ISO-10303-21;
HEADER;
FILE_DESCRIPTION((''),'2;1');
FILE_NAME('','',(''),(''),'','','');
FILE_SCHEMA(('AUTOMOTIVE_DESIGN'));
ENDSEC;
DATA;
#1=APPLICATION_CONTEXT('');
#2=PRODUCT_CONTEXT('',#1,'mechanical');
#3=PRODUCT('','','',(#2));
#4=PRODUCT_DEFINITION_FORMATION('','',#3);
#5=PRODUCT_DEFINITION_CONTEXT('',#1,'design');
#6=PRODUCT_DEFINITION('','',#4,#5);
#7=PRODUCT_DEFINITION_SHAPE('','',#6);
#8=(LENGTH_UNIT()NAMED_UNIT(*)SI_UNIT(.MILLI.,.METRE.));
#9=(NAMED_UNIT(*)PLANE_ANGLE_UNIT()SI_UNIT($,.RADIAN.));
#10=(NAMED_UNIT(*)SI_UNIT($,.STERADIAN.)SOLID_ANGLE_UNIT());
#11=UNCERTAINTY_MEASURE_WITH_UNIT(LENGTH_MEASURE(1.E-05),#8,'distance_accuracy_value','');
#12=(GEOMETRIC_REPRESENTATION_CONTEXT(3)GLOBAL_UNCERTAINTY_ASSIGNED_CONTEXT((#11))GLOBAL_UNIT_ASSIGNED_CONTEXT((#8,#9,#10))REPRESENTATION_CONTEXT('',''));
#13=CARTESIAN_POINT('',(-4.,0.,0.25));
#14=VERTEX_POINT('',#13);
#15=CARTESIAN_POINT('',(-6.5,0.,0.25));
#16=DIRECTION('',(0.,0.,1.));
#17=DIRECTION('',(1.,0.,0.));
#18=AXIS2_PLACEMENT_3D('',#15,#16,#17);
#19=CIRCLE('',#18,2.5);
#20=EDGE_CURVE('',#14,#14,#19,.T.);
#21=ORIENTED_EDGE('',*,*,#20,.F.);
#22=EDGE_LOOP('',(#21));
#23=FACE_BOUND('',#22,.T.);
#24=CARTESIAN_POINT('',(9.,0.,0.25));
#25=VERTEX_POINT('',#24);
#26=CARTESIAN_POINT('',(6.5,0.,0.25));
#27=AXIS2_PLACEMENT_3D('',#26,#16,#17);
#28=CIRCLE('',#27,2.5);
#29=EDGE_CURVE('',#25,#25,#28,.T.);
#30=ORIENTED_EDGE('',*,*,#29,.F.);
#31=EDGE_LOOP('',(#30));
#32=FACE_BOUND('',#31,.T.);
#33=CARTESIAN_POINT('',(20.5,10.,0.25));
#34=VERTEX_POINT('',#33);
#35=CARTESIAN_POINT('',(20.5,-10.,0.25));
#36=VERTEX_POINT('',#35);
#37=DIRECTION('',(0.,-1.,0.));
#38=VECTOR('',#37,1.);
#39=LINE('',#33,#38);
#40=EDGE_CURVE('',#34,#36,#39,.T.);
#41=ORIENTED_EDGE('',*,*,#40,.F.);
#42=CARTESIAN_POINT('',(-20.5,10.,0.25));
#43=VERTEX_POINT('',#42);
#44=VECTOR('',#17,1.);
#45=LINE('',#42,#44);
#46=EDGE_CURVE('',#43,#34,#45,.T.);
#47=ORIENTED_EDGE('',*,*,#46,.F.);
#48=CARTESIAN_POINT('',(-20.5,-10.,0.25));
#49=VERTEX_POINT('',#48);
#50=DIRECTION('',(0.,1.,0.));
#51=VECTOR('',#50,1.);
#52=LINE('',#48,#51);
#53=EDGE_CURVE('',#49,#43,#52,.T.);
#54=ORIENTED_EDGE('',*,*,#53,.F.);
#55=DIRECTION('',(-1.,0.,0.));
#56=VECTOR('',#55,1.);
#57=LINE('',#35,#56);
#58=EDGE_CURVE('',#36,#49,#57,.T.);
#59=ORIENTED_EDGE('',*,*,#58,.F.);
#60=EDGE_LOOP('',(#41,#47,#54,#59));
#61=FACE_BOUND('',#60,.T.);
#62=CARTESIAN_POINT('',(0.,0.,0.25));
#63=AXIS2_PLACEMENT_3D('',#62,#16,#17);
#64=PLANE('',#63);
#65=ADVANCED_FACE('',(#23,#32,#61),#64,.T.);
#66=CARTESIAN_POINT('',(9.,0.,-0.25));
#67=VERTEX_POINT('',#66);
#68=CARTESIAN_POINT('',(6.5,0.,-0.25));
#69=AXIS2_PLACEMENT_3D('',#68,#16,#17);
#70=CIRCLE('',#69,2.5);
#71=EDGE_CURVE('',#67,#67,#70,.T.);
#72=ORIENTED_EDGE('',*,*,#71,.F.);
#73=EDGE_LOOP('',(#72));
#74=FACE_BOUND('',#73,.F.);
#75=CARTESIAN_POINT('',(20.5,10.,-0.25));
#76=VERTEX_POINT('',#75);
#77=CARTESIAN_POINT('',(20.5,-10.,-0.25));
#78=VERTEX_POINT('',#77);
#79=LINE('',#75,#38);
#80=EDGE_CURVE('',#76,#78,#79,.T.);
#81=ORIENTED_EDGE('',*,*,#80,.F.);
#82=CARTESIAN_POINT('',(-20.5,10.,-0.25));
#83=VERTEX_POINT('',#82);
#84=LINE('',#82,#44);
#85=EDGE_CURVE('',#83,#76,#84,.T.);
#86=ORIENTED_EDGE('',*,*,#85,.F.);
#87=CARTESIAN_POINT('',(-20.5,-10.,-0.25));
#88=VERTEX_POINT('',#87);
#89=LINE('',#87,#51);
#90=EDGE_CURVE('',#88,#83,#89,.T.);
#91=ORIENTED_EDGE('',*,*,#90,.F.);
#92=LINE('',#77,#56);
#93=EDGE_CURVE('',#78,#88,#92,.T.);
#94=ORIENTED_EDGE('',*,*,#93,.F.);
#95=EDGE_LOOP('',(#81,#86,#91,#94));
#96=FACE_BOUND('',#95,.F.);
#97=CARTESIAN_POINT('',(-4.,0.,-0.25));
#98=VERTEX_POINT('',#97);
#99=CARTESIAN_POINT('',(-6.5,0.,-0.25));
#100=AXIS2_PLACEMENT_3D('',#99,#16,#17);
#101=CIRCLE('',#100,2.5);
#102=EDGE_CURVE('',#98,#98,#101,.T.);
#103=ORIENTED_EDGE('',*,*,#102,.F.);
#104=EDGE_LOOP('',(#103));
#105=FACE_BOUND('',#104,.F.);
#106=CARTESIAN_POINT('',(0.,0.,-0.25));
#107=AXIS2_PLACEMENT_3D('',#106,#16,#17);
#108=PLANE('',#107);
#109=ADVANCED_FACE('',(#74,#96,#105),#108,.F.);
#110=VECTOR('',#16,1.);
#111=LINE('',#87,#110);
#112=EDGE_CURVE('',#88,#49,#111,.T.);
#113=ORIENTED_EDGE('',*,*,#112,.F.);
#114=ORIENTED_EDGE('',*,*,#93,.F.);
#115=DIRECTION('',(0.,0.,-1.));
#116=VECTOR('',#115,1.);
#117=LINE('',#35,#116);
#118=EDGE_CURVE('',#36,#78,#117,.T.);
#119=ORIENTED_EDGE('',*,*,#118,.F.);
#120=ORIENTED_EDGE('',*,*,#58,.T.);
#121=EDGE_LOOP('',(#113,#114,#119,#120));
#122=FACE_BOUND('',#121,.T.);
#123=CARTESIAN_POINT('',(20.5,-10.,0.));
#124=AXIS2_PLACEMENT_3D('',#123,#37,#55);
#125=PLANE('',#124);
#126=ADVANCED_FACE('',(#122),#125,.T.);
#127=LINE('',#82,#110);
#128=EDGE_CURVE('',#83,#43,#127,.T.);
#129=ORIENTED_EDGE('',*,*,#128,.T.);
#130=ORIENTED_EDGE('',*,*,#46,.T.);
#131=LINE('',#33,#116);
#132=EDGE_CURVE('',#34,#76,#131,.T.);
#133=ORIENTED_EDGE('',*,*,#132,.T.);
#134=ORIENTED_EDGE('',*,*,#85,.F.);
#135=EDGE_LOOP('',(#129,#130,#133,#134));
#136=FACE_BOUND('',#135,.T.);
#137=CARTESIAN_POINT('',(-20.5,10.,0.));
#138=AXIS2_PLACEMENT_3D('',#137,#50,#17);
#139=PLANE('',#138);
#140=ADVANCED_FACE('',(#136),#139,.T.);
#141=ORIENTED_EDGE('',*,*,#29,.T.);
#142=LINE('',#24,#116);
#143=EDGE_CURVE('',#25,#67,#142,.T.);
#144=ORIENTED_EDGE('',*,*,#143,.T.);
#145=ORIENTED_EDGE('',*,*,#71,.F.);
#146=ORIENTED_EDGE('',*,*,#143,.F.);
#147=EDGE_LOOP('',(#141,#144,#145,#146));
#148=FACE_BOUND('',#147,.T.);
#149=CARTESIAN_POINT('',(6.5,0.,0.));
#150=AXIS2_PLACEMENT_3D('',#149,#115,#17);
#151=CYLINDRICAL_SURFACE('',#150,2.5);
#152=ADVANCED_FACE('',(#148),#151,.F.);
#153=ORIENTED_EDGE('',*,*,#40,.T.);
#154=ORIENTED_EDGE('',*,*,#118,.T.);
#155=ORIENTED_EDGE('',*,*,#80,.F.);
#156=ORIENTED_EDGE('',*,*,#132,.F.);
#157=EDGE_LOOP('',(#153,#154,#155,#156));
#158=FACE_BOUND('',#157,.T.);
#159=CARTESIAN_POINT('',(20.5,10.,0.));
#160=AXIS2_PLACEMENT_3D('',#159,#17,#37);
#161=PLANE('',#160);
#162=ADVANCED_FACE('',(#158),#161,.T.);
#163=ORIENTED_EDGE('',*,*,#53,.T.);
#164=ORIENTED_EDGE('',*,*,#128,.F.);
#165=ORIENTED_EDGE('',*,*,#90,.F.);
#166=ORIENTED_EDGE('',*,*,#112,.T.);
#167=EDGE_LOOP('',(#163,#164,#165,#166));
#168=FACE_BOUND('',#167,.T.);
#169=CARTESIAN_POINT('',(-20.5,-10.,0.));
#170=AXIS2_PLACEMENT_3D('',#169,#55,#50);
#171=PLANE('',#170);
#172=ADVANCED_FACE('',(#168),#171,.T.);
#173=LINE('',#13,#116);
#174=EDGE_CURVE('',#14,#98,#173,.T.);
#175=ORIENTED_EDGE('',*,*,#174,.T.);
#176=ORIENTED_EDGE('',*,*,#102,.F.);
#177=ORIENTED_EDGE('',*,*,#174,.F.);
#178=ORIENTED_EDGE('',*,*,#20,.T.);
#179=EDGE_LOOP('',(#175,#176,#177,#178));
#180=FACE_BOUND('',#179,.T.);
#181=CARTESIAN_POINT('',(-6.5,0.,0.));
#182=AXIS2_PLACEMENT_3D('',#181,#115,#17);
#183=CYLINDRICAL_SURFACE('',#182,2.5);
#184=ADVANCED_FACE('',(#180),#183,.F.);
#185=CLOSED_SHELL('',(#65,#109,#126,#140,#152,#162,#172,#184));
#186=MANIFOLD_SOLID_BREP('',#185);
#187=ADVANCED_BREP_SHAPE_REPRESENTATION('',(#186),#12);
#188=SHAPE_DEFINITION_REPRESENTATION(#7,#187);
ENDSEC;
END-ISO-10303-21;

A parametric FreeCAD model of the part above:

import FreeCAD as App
import Part
import Sketcher

doc = App.newDocument("Part")
body = doc.addObject("PartDesign::Body", "Body")

# Sketch on XY plane
sketch1 = doc.addObject("Sketcher::SketchObject", "Sketch")
body.addObject(sketch1)
sketch1.AttachmentSupport = (doc.XY_Plane, [""])
sketch1.MapMode = "FlatFace"
sketch1.addGeometry([
    Part.LineSegment(App.Vector(20.5, 10, 0), App.Vector(-20.5, 10, 0)),  # 0
    Part.LineSegment(App.Vector(-20.5, 10, 0), App.Vector(-20.5, -10, 0)),  # 1
    Part.LineSegment(App.Vector(-20.5, -10, 0), App.Vector(20.5, -10, 0)),  # 2
    Part.LineSegment(App.Vector(20.5, -10, 0), App.Vector(20.5, 10, 0)),  # 3
    Part.Circle(App.Vector(-6.5, 0, 0), App.Vector(0, 0, 1), 2.5),  # 4
    Part.Circle(App.Vector(6.5, 0, 0), App.Vector(0, 0, 1), 2.5),  # 5
], False)
sketch1.addConstraint([
    Sketcher.Constraint("Coincident", 0, 2, 1, 1),
    Sketcher.Constraint("Coincident", 1, 2, 2, 1),
    Sketcher.Constraint("Coincident", 2, 2, 3, 1),
    Sketcher.Constraint("Coincident", 3, 2, 0, 1),
    Sketcher.Constraint("Horizontal", 0),
    Sketcher.Constraint("Vertical", 1),
    Sketcher.Constraint("Horizontal", 2),
    Sketcher.Constraint("Vertical", 3),
    Sketcher.Constraint("Equal", 4, 5),
    Sketcher.Constraint("Symmetric", 4, 3, 5, 3, -1, 1),
    Sketcher.Constraint("Symmetric", 0, 2, 2, 2, -1, 1),
    Sketcher.Constraint("PointOnObject", 4, 3, -1),
    Sketcher.Constraint("Diameter", 4, 5.0),
    Sketcher.Constraint("DistanceX", 0, 2, 0, 1, 41.0),
    Sketcher.Constraint("DistanceY", 1, 2, 1, 1, 20.0),
    Sketcher.Constraint("DistanceX", 4, 3, -1, 1, 6.5),
])
pad1 = doc.addObject("PartDesign::Pad", "Pad")
body.addObject(pad1)
pad1.Profile = sketch1
pad1.Length = 0.5
pad1.Midplane = True

doc.recompute()
